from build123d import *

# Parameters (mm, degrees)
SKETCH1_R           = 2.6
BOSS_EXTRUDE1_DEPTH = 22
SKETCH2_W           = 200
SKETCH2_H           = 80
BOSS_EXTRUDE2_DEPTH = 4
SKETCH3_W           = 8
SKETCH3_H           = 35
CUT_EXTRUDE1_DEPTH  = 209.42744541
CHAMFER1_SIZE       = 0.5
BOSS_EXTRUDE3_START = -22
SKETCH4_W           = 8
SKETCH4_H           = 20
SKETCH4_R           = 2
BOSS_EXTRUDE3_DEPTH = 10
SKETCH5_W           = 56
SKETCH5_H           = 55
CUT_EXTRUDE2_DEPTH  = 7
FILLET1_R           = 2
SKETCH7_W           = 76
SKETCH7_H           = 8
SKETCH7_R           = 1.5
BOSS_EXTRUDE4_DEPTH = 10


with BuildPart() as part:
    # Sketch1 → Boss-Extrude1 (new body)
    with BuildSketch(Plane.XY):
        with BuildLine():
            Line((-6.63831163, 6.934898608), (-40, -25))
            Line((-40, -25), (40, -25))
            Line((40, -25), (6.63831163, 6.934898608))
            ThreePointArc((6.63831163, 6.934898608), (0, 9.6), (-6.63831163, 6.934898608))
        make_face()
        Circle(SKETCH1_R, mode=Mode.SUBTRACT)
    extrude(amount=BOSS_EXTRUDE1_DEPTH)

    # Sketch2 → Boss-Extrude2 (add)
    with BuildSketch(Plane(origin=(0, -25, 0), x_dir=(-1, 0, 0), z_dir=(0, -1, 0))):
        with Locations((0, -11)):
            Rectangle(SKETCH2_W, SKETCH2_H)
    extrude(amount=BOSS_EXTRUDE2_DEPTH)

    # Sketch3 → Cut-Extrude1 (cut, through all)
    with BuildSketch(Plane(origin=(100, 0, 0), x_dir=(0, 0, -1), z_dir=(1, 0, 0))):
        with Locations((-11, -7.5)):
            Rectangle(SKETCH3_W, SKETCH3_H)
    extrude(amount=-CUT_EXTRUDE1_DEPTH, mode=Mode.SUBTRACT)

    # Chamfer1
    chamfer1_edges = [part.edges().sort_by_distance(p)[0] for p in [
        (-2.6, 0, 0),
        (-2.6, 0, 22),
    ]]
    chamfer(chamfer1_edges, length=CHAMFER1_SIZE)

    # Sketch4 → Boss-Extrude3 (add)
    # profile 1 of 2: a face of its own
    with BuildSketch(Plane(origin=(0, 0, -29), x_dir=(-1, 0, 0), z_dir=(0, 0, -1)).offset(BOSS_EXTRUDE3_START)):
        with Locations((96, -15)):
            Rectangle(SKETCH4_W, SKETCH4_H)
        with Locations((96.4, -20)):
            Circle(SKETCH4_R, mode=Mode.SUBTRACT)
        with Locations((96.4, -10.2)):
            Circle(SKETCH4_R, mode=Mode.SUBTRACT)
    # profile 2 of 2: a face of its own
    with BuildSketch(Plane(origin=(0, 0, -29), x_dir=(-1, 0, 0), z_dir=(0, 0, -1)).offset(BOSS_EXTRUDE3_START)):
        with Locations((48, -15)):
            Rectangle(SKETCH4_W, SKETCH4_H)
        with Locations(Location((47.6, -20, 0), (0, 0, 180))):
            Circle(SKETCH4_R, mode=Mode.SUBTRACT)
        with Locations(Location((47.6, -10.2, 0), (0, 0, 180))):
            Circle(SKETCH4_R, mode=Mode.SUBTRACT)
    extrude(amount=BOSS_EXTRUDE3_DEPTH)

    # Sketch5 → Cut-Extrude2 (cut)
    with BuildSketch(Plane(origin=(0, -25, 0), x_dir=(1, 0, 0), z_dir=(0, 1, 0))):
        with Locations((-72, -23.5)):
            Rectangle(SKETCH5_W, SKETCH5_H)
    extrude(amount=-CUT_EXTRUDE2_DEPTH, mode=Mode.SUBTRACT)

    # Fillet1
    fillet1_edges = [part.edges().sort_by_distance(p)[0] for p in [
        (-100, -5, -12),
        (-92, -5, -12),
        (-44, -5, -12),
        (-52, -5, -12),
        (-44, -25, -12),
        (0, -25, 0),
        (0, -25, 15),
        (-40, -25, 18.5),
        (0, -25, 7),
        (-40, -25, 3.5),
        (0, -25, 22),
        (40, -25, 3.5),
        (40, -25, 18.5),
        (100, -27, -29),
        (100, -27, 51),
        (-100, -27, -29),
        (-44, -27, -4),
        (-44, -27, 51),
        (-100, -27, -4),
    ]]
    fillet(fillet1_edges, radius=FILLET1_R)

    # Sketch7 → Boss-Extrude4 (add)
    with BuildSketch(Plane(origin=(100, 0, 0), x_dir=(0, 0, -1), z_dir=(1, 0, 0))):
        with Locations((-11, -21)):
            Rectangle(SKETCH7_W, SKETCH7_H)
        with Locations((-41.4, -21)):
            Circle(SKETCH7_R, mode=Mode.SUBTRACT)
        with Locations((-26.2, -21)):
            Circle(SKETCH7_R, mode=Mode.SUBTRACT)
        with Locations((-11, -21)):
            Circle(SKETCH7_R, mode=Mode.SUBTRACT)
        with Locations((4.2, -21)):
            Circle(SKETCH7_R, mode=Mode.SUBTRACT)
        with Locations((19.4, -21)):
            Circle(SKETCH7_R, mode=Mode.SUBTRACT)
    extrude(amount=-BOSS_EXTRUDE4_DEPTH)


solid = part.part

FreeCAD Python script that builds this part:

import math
import FreeCAD as App
import Part
import Sketcher


def edges_at(feature, points):
    """Names of the edges that pass closest to the given points."""
    edges = feature.Shape.Edges
    near = lambda p: min(range(len(edges)), key=lambda i: edges[i].distToShape(Part.Vertex(*p))[0])
    return sorted({f"Edge{near(p) + 1}" for p in points})


def add_polygon(sketch, points):
    """Adds a closed chain of lines whose ends are joined by coincident constraints."""
    first, n = sketch.GeometryCount, len(points)
    for a, b in zip(points, points[1:] + points[:1]):
        sketch.addGeometry(Part.LineSegment(App.Vector(*a, 0), App.Vector(*b, 0)), False)
    for i in range(n):
        sketch.addConstraint(Sketcher.Constraint("Coincident", first + i, 2, first + (i + 1) % n, 1))

doc = App.newDocument("Part")
body = doc.addObject("PartDesign::Body", "Body")

# Sketch on XY plane
sketch1 = doc.addObject("Sketcher::SketchObject", "Sketch")
body.addObject(sketch1)
sketch1.AttachmentSupport = (doc.XY_Plane, [""])
sketch1.MapMode = "FlatFace"
sketch1.addGeometry(Part.LineSegment(App.Vector(-6.638312, 6.934899, 0), App.Vector(-40, -25, 0)), False)
sketch1.addGeometry(Part.LineSegment(App.Vector(-40, -25, 0), App.Vector(40, -25, 0)), False)
sketch1.addGeometry(Part.LineSegment(App.Vector(40, -25, 0), App.Vector(6.638312, 6.934899, 0)), False)
sketch1.addGeometry(Part.ArcOfCircle(Part.Circle(App.Vector(0, 0, 0), App.Vector(0, 0, 1), 9.6), math.radians(46.251766), math.radians(133.748234)), False)
sketch1.addGeometry(Part.Circle(App.Vector(0, 0, 0), App.Vector(0, 0, 1), 2.6), False)
sketch1.addConstraint(Sketcher.Constraint("Coincident", 0, 2, 1, 1))
sketch1.addConstraint(Sketcher.Constraint("Coincident", 1, 2, 2, 1))
sketch1.addConstraint(Sketcher.Constraint("Tangent", 2, 2, 3, 1))
sketch1.addConstraint(Sketcher.Constraint("Tangent", 3, 2, 0, 1))
sketch1.addConstraint(Sketcher.Constraint("Horizontal", 1))
sketch1.addConstraint(Sketcher.Constraint("Coincident", 3, 3, -1, 1))
sketch1.addConstraint(Sketcher.Constraint("Coincident", 4, 3, -1, 1))
sketch1.addConstraint(Sketcher.Constraint("Horizontal", 2, 2, 3, 2))
sketch1.addConstraint(Sketcher.Constraint("Diameter", 4, 5.2))
sketch1.addConstraint(Sketcher.Constraint("Radius", 3, 9.6))
sketch1.addConstraint(Sketcher.Constraint("DistanceX", 1, 1, 1, 2, 80.0))
sketch1.addConstraint(Sketcher.Constraint("DistanceY", 0, 2, -1, 1, 25.0))
pad1 = doc.addObject("PartDesign::Pad", "Pad")
body.addObject(pad1)
pad1.Profile = sketch1
pad1.Length = 22

# Sketch on XZ plane
sketch2 = doc.addObject("Sketcher::SketchObject", "Sketch001")
body.addObject(sketch2)
sketch2.AttachmentSupport = (doc.XZ_Plane, [""])
sketch2.MapMode = "FlatFace"
sketch2.AttachmentOffset = App.Placement(App.Vector(0, 0, 25), App.Rotation())
add_polygon(sketch2, [(100, -29), (100, 51), (-100, 51), (-100, -29)])  # lines 0-3
sketch2.addConstraint(Sketcher.Constraint("Vertical", 0))
sketch2.addConstraint(Sketcher.Constraint("Horizontal", 1))
sketch2.addConstraint(Sketcher.Constraint("Vertical", 2))
sketch2.addConstraint(Sketcher.Constraint("Horizontal", 3))
sketch2.addConstraint(Sketcher.Constraint("DistanceX", 1, 2, 1, 1, 200.0))
sketch2.addConstraint(Sketcher.Constraint("DistanceY", 0, 1, 0, 2, 80.0))
sketch2.addConstraint(Sketcher.Constraint("DistanceX", -1, 1, 0, 2, 100.0))
sketch2.addConstraint(Sketcher.Constraint("DistanceY", -1, 1, 0, 2, 51.0))
pad2 = doc.addObject("PartDesign::Pad", "Pad001")
body.addObject(pad2)
pad2.Profile = sketch2
pad2.Length = 4

# Sketch on YZ plane
sketch3 = doc.addObject("Sketcher::SketchObject", "Sketch002")
body.addObject(sketch3)
sketch3.AttachmentSupport = (doc.YZ_Plane, [""])
sketch3.MapMode = "FlatFace"
sketch3.AttachmentOffset = App.Placement(App.Vector(0, 0, 100), App.Rotation())
add_polygon(sketch3, [(10, 15), (-25, 15), (-25, 7), (10, 7)])  # lines 0-3
sketch3.addConstraint(Sketcher.Constraint("Horizontal", 0))
sketch3.addConstraint(Sketcher.Constraint("Vertical", 1))
sketch3.addConstraint(Sketcher.Constraint("Horizontal", 2))
sketch3.addConstraint(Sketcher.Constraint("Vertical", 3))
sketch3.addConstraint(Sketcher.Constraint("DistanceX", 0, 2, 0, 1, 35.0))
sketch3.addConstraint(Sketcher.Constraint("DistanceY", 1, 2, 1, 1, 8.0))
sketch3.addConstraint(Sketcher.Constraint("DistanceX", 0, 2, -1, 1, 25.0))
sketch3.addConstraint(Sketcher.Constraint("DistanceY", -1, 1, 0, 2, 15.0))
pocket1 = doc.addObject("PartDesign::Pocket", "Pocket")
body.addObject(pocket1)
pocket1.Profile = sketch3
pocket1.Type = "ThroughAll"
doc.recompute()

chamfer = doc.addObject("PartDesign::Chamfer", "Chamfer")
body.addObject(chamfer)
chamfer.Base = (pocket1, edges_at(pocket1, [(-2.6, 0, 0), (-2.6, 0, 22)]))
chamfer.Size = 0.5

# Sketch on XY plane
sketch4 = doc.addObject("Sketcher::SketchObject", "Sketch003")
body.addObject(sketch4)
sketch4.AttachmentSupport = (doc.XY_Plane, [""])
sketch4.MapMode = "FlatFace"
sketch4.AttachmentOffset = App.Placement(App.Vector(0, 0, -7), App.Rotation())
add_polygon(sketch4, [(-92, -5), (-92, -25), (-100, -25), (-100, -5)])  # lines 0-3
sketch4.addGeometry(Part.Circle(App.Vector(-96.4, -20, 0), App.Vector(0, 0, 1), 2), False)  # 4
sketch4.addGeometry(Part.Circle(App.Vector(-96.4, -10.2, 0), App.Vector(0, 0, 1), 2), False)  # 5
add_polygon(sketch4, [(-44, -5), (-44, -25), (-52, -25), (-52, -5)])  # lines 6-9
sketch4.addGeometry(Part.Circle(App.Vector(-47.6, -20, 0), App.Vector(0, 0, 1), 2), False)  # 10
sketch4.addGeometry(Part.Circle(App.Vector(-47.6, -10.2, 0), App.Vector(0, 0, 1), 2), False)  # 11
sketch4.addConstraint(Sketcher.Constraint("Vertical", 0))
sketch4.addConstraint(Sketcher.Constraint("Horizontal", 1))
sketch4.addConstraint(Sketcher.Constraint("Vertical", 2))
sketch4.addConstraint(Sketcher.Constraint("Horizontal", 3))
sketch4.addConstraint(Sketcher.Constraint("Vertical", 6))
sketch4.addConstraint(Sketcher.Constraint("Horizontal", 7))
sketch4.addConstraint(Sketcher.Constraint("Vertical", 8))
sketch4.addConstraint(Sketcher.Constraint("Horizontal", 9))
sketch4.addConstraint(Sketcher.Constraint("Equal", 4, 5))
sketch4.addConstraint(Sketcher.Constraint("Equal", 5, 10))
sketch4.addConstraint(Sketcher.Constraint("Equal", 10, 11))
sketch4.addConstraint(Sketcher.Constraint("Horizontal", 4, 3, 10, 3))
sketch4.addConstraint(Sketcher.Constraint("Horizontal", 5, 3, 11, 3))
sketch4.addConstraint(Sketcher.Constraint("Horizontal", 1, 2, 6, 2))
sketch4.addConstraint(Sketcher.Constraint("Horizontal", 3, 2, 8, 2))
sketch4.addConstraint(Sketcher.Constraint("Vertical", 4, 3, 5, 3))
sketch4.addConstraint(Sketcher.Constraint("Vertical", 10, 3, 11, 3))
sketch4.addConstraint(Sketcher.Constraint("Equal", 3, 7))
sketch4.addConstraint(Sketcher.Constraint("Diameter", 4, 4.0))
sketch4.addConstraint(Sketcher.Constraint("DistanceX", 1, 2, 1, 1, 8.0))
sketch4.addConstraint(Sketcher.Constraint("DistanceY", 0, 2, 0, 1, 20.0))
sketch4.addConstraint(Sketcher.Constraint("DistanceY", 4, 3, -1, 1, 20.0))
sketch4.addConstraint(Sketcher.Constraint("DistanceX", 0, 2, -1, 1, 92.0))
sketch4.addConstraint(Sketcher.Constraint("DistanceY", 0, 2, -1, 1, 25.0))
sketch4.addConstraint(Sketcher.Constraint("DistanceX", 6, 2, -1, 1, 44.0))
sketch4.addConstraint(Sketcher.Constraint("DistanceX", 4, 3, -1, 1, 96.4))
sketch4.addConstraint(Sketcher.Constraint("DistanceY", 5, 3, -1, 1, 10.2))
sketch4.addConstraint(Sketcher.Constraint("DistanceX", 10, 3, -1, 1, 47.6))
pad3 = doc.addObject("PartDesign::Pad", "Pad002")
body.addObject(pad3)
pad3.Profile = sketch4
pad3.Length = 10
pad3.Reversed = True

# Sketch on XZ plane
sketch5 = doc.addObject("Sketcher::SketchObject", "Sketch004")
body.addObject(sketch5)
sketch5.AttachmentSupport = (doc.XZ_Plane, [""])
sketch5.MapMode = "FlatFace"
sketch5.AttachmentOffset = App.Placement(App.Vector(0, 0, 25), App.Rotation())
add_polygon(sketch5, [(-100, -4), (-100, 51), (-44, 51), (-44, -4)])  # lines 0-3
sketch5.addConstraint(Sketcher.Constraint("Vertical", 0))
sketch5.addConstraint(Sketcher.Constraint("Horizontal", 1))
sketch5.addConstraint(Sketcher.Constraint("Vertical", 2))
sketch5.addConstraint(Sketcher.Constraint("Horizontal", 3))
sketch5.addConstraint(Sketcher.Constraint("DistanceX", 1, 1, 1, 2, 56.0))
sketch5.addConstraint(Sketcher.Constraint("DistanceY", 0, 1, 0, 2, 55.0))
sketch5.addConstraint(Sketcher.Constraint("DistanceX", 0, 2, -1, 1, 100.0))
sketch5.addConstraint(Sketcher.Constraint("DistanceY", -1, 1, 0, 2, 51.0))
pocket2 = doc.addObject("PartDesign::Pocket", "Pocket001")
body.addObject(pocket2)
pocket2.Profile = sketch5
pocket2.Length = 7
pocket2.Reversed = True
doc.recompute()

fillet = doc.addObject("PartDesign::Fillet", "Fillet")
body.addObject(fillet)
fillet.Base = (pocket2, edges_at(pocket2, [
    (-100, -5, -12),
    (-92, -5, -12),
    (-44, -5, -12),
    (-52, -5, -12),
    (-44, -25, -12),
    (0, -25, 0),
    (0, -25, 15),
    (-40, -25, 18.5),
    (0, -25, 7),
    (-40, -25, 3.5),
    (0, -25, 22),
    (40, -25, 3.5),
    (40, -25, 18.5),
    (100, -27, -29),
    (100, -27, 51),
    (-100, -27, -29),
    (-44, -27, -4),
    (-44, -27, 51),
    (-100, -27, -4),
]))
fillet.Radius = 2

# Sketch on YZ plane
sketch6 = doc.addObject("Sketcher::SketchObject", "Sketch005")
body.addObject(sketch6)
sketch6.AttachmentSupport = (doc.YZ_Plane, [""])
sketch6.MapMode = "FlatFace"
sketch6.AttachmentOffset = App.Placement(App.Vector(0, 0, 100), App.Rotation())
add_polygon(sketch6, [(-17, 49), (-25, 49), (-25, -27), (-17, -27)])  # lines 0-3
sketch6.addGeometry(Part.Circle(App.Vector(-21, 41.4, 0), App.Vector(0, 0, 1), 1.5), False)  # 4
sketch6.addGeometry(Part.Circle(App.Vector(-21, 26.2, 0), App.Vector(0, 0, 1), 1.5), False)  # 5
sketch6.addGeometry(Part.Circle(App.Vector(-21, 11, 0), App.Vector(0, 0, 1), 1.5), False)  # 6
sketch6.addGeometry(Part.Circle(App.Vector(-21, -4.2, 0), App.Vector(0, 0, 1), 1.5), False)  # 7
sketch6.addGeometry(Part.Circle(App.Vector(-21, -19.4, 0), App.Vector(0, 0, 1), 1.5), False)  # 8
sketch6.addConstraint(Sketcher.Constraint("Horizontal", 0))
sketch6.addConstraint(Sketcher.Constraint("Vertical", 1))
sketch6.addConstraint(Sketcher.Constraint("Horizontal", 2))
sketch6.addConstraint(Sketcher.Constraint("Vertical", 3))
sketch6.addConstraint(Sketcher.Constraint("Equal", 4, 5))
sketch6.addConstraint(Sketcher.Constraint("Equal", 5, 6))
sketch6.addConstraint(Sketcher.Constraint("Equal", 6, 7))
sketch6.addConstraint(Sketcher.Constraint("Equal", 7, 8))
sketch6.addConstraint(Sketcher.Constraint("Vertical", 4, 3, 5, 3))
sketch6.addConstraint(Sketcher.Constraint("Vertical", 5, 3, 6, 3))
sketch6.addConstraint(Sketcher.Constraint("Vertical", 6, 3, 7, 3))
sketch6.addConstraint(Sketcher.Constraint("Vertical", 7, 3, 8, 3))
sketch6.addConstraint(Sketcher.Constraint("Diameter", 4, 3.0))
sketch6.addConstraint(Sketcher.Constraint("DistanceX", 0, 2, 0, 1, 8.0))
sketch6.addConstraint(Sketcher.Constraint("DistanceY", 1, 2, 1, 1, 76.0))
sketch6.addConstraint(Sketcher.Constraint("DistanceX", 4, 3, -1, 1, 21.0))
sketch6.addConstraint(Sketcher.Constraint("DistanceY", -1, 1, 6, 3, 11.0))
sketch6.addConstraint(Sketcher.Constraint("DistanceX", 0, 2, -1, 1, 25.0))
sketch6.addConstraint(Sketcher.Constraint("DistanceY", -1, 1, 0, 2, 49.0))
sketch6.addConstraint(Sketcher.Constraint("DistanceY", -1, 1, 4, 3, 41.4))
sketch6.addConstraint(Sketcher.Constraint("DistanceY", -1, 1, 5, 3, 26.2))
sketch6.addConstraint(Sketcher.Constraint("DistanceY", 7, 3, -1, 1, 4.2))
sketch6.addConstraint(Sketcher.Constraint("DistanceY", 8, 3, -1, 1, 19.4))
pad4 = doc.addObject("PartDesign::Pad", "Pad003")
body.addObject(pad4)
pad4.Profile = sketch6
pad4.Length = 10
pad4.Reversed = True

doc.recompute()
